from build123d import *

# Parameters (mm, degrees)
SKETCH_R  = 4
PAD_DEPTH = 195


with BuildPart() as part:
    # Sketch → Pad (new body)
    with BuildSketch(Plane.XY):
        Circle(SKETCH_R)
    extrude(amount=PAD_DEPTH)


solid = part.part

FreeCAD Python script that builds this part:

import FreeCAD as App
import Part
import Sketcher
from FreeCAD import Vector
Q = App.Units.Quantity

doc = App.newDocument("Part")
body = doc.addObject("PartDesign::Body", "Body")

# Sketch on XY plane
sketch1 = doc.addObject("Sketcher::SketchObject", "Sketch")
body.addObject(sketch1)
sketch1.AttachmentSupport = (doc.XY_Plane, [""])
sketch1.MapMode = "FlatFace"
sketch1.addGeometry(Part.Circle(Vector(0, 0, 0), Vector(0, 0, 1), 4), False)
sketch1.addConstraint(Sketcher.Constraint("Coincident", 0, 3, -1, 1))
sketch1.addConstraint(Sketcher.Constraint("Diameter", 0, Q("8 mm")))
pad1 = doc.addObject("PartDesign::Pad", "Pad")
body.addObject(pad1)
pad1.Profile = sketch1
pad1.Length = 195

doc.recompute()
